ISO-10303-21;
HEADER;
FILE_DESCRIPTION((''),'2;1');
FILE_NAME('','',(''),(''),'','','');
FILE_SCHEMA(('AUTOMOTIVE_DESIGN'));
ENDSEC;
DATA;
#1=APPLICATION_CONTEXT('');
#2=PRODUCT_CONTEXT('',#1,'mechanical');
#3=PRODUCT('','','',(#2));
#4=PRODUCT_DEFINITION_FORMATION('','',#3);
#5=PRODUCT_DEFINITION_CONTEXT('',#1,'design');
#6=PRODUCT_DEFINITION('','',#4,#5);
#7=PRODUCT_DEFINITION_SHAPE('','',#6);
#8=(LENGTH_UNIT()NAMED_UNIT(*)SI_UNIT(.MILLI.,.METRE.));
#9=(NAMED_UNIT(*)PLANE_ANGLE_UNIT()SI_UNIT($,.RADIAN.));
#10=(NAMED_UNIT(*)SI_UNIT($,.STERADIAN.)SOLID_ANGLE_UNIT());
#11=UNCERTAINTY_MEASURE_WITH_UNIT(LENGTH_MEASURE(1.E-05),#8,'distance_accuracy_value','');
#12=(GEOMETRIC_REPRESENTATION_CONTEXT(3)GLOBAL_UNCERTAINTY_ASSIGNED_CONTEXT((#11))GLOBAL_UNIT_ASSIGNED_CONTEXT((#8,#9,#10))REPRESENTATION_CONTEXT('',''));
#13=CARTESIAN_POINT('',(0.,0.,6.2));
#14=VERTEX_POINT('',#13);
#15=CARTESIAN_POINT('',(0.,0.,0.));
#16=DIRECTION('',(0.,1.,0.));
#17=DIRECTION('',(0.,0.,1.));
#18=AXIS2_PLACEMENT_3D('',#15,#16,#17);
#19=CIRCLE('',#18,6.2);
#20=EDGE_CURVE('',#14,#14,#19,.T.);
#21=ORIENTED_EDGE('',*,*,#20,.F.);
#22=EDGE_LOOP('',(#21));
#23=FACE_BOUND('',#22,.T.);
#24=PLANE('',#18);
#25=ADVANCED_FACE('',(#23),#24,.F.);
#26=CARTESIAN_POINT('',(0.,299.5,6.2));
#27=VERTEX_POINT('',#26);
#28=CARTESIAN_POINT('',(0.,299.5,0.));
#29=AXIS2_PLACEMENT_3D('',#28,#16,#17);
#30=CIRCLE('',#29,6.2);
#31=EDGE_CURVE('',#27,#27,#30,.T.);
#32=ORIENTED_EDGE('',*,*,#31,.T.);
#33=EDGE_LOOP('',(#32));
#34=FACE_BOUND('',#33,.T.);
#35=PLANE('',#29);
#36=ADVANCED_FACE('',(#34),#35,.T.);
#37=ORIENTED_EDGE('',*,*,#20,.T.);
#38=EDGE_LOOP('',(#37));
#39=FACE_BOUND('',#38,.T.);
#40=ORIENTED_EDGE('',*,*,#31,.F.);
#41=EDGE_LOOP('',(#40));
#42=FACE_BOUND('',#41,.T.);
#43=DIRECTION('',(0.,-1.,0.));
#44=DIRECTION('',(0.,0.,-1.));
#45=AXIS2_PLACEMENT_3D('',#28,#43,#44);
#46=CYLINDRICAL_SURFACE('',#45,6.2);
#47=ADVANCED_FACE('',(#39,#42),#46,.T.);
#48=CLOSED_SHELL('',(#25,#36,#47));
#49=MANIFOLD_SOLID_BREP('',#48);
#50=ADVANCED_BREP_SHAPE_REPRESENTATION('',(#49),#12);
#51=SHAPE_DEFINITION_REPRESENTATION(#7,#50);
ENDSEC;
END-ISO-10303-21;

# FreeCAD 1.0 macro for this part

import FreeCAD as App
import Part
import Sketcher
from FreeCAD import Vector

doc = App.newDocument("Part")
params = doc.addObject("Spreadsheet::Sheet", "Params")
for row, (alias, value) in enumerate([
    ("sketch1_diameter", "12.4 mm"),
    ("pad1_length", "299.5 mm"),
], start=1):
    params.set(f"A{row}", alias)
    params.set(f"B{row}", "=" + value)
    params.setAlias(f"B{row}", alias)

body = doc.addObject("PartDesign::Body", "Body")

sketch1 = doc.addObject("Sketcher::SketchObject", "Sketch")
body.addObject(sketch1)
sketch1.AttachmentSupport = (doc.XZ_Plane, [""])
sketch1.MapMode = "FlatFace"
sketch1.addGeometry(Part.Circle(Vector(0, 0, 0), Vector(0, 0, 1), 6), False)
sketch1.addConstraint(Sketcher.Constraint("Coincident", 0, 3, -1, 1))
sketch1.addConstraint(Sketcher.Constraint("Diameter", 0, 12.4))
sketch1.setExpression("Constraints[1]", "Params.sketch1_diameter")
pad1 = doc.addObject("PartDesign::Pad", "Pad")
body.addObject(pad1)
pad1.Profile = sketch1
pad1.setExpression("Length", "Params.pad1_length")
pad1.Reversed = True

doc.recompute()
